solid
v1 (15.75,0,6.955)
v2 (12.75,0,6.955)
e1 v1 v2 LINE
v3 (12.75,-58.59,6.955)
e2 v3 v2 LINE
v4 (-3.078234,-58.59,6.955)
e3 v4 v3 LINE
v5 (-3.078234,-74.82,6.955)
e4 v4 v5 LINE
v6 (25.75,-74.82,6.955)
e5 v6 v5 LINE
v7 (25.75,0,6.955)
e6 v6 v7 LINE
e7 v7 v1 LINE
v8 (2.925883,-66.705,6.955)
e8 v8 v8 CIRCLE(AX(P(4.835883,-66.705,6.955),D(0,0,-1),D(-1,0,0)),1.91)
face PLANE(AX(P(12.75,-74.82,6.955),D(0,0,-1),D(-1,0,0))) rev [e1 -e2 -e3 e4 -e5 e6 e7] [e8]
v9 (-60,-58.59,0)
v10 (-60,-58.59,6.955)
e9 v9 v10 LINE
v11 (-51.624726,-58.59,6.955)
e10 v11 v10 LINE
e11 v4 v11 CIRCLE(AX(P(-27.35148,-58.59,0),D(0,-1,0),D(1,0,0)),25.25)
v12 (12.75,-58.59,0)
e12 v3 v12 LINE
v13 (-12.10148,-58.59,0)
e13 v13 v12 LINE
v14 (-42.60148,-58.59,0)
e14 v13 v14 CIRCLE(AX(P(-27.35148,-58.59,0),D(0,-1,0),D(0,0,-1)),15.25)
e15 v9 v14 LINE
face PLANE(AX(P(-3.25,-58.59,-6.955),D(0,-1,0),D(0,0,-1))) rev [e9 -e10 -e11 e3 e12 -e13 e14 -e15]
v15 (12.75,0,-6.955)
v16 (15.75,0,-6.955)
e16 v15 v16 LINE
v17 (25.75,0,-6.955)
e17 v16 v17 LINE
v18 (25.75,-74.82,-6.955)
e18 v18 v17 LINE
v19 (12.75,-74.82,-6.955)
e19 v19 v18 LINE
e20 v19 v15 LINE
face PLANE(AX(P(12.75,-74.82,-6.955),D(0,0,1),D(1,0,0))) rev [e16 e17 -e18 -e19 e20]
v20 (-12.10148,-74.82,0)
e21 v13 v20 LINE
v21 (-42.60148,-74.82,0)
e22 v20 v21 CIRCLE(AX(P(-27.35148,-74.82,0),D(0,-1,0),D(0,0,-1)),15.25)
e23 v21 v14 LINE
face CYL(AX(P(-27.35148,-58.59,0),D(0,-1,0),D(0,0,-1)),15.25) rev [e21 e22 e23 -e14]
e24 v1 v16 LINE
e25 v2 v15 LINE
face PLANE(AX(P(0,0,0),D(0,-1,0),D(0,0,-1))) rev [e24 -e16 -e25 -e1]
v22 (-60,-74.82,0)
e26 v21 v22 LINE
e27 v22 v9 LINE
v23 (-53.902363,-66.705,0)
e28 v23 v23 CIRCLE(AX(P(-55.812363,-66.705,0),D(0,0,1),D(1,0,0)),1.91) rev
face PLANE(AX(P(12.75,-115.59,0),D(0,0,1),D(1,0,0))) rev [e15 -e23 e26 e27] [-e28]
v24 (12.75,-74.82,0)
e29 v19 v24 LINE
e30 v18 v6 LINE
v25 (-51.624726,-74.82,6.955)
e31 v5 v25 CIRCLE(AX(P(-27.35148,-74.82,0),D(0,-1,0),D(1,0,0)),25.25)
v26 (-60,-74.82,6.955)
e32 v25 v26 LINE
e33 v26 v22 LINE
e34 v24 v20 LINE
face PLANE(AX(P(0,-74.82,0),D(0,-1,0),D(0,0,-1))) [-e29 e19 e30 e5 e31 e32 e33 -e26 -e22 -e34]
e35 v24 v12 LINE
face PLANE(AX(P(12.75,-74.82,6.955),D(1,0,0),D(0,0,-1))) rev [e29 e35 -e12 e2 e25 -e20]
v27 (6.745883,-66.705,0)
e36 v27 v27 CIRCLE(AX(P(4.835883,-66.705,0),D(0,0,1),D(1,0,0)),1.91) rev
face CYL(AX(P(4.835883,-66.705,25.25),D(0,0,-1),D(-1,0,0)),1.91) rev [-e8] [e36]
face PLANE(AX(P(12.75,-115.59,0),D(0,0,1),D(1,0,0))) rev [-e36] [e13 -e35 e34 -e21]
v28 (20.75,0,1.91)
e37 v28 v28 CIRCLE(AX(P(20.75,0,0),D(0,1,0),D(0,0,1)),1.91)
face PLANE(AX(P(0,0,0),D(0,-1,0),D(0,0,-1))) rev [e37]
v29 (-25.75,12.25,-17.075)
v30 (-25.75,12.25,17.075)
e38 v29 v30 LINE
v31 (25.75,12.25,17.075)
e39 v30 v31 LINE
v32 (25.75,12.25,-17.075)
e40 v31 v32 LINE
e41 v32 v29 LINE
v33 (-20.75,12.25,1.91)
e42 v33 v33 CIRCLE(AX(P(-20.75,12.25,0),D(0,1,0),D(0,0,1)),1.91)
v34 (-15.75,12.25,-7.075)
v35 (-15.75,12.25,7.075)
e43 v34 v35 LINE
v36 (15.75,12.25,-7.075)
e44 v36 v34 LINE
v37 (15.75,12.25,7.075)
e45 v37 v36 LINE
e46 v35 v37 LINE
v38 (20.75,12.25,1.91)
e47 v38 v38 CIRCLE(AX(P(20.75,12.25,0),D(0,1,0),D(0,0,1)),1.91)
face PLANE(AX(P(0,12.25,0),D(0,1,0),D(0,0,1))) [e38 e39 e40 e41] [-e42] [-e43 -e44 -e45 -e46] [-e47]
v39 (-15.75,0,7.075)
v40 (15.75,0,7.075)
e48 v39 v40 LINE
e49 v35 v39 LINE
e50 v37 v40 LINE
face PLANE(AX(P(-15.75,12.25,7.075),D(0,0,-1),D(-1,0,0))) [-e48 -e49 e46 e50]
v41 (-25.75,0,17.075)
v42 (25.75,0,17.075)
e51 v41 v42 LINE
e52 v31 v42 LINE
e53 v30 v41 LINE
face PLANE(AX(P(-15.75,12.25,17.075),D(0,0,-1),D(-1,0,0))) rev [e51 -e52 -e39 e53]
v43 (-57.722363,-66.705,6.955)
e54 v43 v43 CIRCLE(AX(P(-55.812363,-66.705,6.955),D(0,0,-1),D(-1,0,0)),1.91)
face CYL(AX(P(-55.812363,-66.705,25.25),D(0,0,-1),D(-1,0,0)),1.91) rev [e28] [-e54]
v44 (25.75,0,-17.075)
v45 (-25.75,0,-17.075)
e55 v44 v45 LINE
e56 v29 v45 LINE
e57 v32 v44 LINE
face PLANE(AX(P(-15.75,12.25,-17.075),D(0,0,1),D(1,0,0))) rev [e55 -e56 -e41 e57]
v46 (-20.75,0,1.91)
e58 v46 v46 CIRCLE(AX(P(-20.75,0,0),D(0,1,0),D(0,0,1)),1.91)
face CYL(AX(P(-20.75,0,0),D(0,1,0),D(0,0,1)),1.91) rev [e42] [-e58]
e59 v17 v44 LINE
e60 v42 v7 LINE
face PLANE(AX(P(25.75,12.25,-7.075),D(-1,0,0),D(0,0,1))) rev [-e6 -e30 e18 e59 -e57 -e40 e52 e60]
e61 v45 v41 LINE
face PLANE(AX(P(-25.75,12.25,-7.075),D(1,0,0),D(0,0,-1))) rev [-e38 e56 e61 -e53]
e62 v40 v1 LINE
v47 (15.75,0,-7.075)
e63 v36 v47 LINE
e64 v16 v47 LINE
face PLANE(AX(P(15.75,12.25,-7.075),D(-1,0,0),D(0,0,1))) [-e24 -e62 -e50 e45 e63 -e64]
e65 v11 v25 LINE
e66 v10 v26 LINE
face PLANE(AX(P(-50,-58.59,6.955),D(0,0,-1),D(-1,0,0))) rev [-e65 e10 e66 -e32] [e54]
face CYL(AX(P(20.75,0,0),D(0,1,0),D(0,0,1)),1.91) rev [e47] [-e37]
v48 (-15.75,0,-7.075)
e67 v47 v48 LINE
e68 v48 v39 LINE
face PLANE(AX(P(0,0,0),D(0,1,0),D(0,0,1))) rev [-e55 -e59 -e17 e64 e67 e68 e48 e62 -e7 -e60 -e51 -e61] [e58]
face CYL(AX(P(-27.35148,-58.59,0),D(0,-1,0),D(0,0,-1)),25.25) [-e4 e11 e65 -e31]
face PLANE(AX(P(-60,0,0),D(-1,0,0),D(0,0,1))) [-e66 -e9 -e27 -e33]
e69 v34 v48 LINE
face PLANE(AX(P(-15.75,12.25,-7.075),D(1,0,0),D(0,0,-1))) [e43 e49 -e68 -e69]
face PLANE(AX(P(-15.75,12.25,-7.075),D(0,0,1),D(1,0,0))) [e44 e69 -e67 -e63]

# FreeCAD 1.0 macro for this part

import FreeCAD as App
import Part
import Sketcher
Q = App.Units.Quantity

doc = App.newDocument("Part")
body = doc.addObject("PartDesign::Body", "Body")

sketch1 = doc.addObject("Sketcher::SketchObject", "Sketch")
body.addObject(sketch1)
sketch1.AttachmentSupport = (doc.XZ_Plane, [""])
sketch1.MapMode = "FlatFace"
sketch1.addGeometry([
    Part.LineSegment(App.Vector(-26, -17, 0), App.Vector(-26, 17, 0)),
    Part.LineSegment(App.Vector(-26, 17, 0), App.Vector(26, 17, 0)),
    Part.LineSegment(App.Vector(26, 17, 0), App.Vector(26, -17, 0)),
    Part.LineSegment(App.Vector(26, -17, 0), App.Vector(-26, -17, 0)),
    Part.LineSegment(App.Vector(16, 7, 0), App.Vector(-16, 7, 0)),
    Part.LineSegment(App.Vector(-16, 7, 0), App.Vector(-16, -7, 0)),
    Part.LineSegment(App.Vector(-16, -7, 0), App.Vector(16, -7, 0)),
    Part.LineSegment(App.Vector(16, -7, 0), App.Vector(16, 7, 0)),
], False)
sketch1.addConstraint([
    Sketcher.Constraint("Coincident", 0, 2, 1, 1),
    Sketcher.Constraint("Coincident", 1, 2, 2, 1),
    Sketcher.Constraint("Coincident", 2, 2, 3, 1),
    Sketcher.Constraint("Coincident", 3, 2, 0, 1),
    Sketcher.Constraint("Coincident", 4, 2, 5, 1),
    Sketcher.Constraint("Coincident", 5, 2, 6, 1),
    Sketcher.Constraint("Coincident", 6, 2, 7, 1),
    Sketcher.Constraint("Coincident", 7, 2, 4, 1),
    Sketcher.Constraint("Vertical", 0),
    Sketcher.Constraint("Horizontal", 1),
    Sketcher.Constraint("Vertical", 2),
    Sketcher.Constraint("Horizontal", 3),
    Sketcher.Constraint("Horizontal", 4),
    Sketcher.Constraint("Vertical", 5),
    Sketcher.Constraint("Horizontal", 6),
    Sketcher.Constraint("Vertical", 7),
    Sketcher.Constraint("Symmetric", 0, 2, 2, 2, -1, 1),
    Sketcher.Constraint("Symmetric", 4, 2, 6, 2, -1, 1),
    Sketcher.Constraint("DistanceX", 1, 1, 1, 2, Q("51.5 mm")),
    Sketcher.Constraint("DistanceX", 4, 2, 4, 1, Q("31.5 mm")),
    Sketcher.Constraint("DistanceY", 4, 2, 0, 2, Q("10 mm")),
    Sketcher.Constraint("DistanceY", 0, 1, 0, 2, Q("34.15 mm")),
])
pad1 = doc.addObject("PartDesign::Pad", "Pad")
body.addObject(pad1)
pad1.Profile = sketch1
pad1.Length = 12.25
pad1.Reversed = True

sketch2 = doc.addObject("Sketcher::SketchObject", "Sketch001")
body.addObject(sketch2)
sketch2.AttachmentSupport = (doc.XZ_Plane, [""])
sketch2.MapMode = "FlatFace"
sketch2.AttachmentOffset = App.Placement(App.Vector(0, 0, -12.25), App.Rotation())
sketch2.addGeometry([
    Part.Circle(App.Vector(-20.8, 0, 0), App.Vector(0, 0, 1), 1.9),
    Part.Circle(App.Vector(20.8, 0, 0), App.Vector(0, 0, 1), 1.9),
], False)
sketch2.addConstraint([
    Sketcher.Constraint("Equal", 0, 1),
    Sketcher.Constraint("Symmetric", 0, 3, 1, 3, -1, 1),
    Sketcher.Constraint("PointOnObject", 0, 3, -1),
    Sketcher.Constraint("Diameter", 0, Q("3.82 mm")),
    Sketcher.Constraint("DistanceX", 0, 3, 1, 3, Q("41.5 mm")),
])
pocket1 = doc.addObject("PartDesign::Pocket", "Pocket")
body.addObject(pocket1)
pocket1.Profile = sketch2
pocket1.Type = "ThroughAll"
pocket1.Reversed = True

sketch3 = doc.addObject("Sketcher::SketchObject", "Sketch002")
body.addObject(sketch3)
sketch3.AttachmentSupport = (doc.XZ_Plane, [""])
sketch3.MapMode = "FlatFace"
sketch3.addGeometry([
    Part.LineSegment(App.Vector(13, 7, 0), App.Vector(13, -7, 0)),
    Part.LineSegment(App.Vector(13, -7, 0), App.Vector(26, -7, 0)),
    Part.LineSegment(App.Vector(26, -7, 0), App.Vector(26, 7, 0)),
    Part.LineSegment(App.Vector(26, 7, 0), App.Vector(13, 7, 0)),
], False)
sketch3.addConstraint([
    Sketcher.Constraint("Coincident", 0, 2, 1, 1),
    Sketcher.Constraint("Coincident", 1, 2, 2, 1),
    Sketcher.Constraint("Coincident", 2, 2, 3, 1),
    Sketcher.Constraint("Coincident", 3, 2, 0, 1),
    Sketcher.Constraint("Vertical", 0),
    Sketcher.Constraint("Horizontal", 1),
    Sketcher.Constraint("Vertical", 2),
    Sketcher.Constraint("Horizontal", 3),
    Sketcher.Constraint("DistanceX", 1, 1, 1, 2, Q("13 mm")),
    Sketcher.Constraint("DistanceY", 0, 2, 0, 1, Q("13.91 mm")),
    Sketcher.Constraint("DistanceX", -1, 1, 0, 2, Q("12.75 mm")),
    Sketcher.Constraint("DistanceY", 0, 2, -1, 1, Q("6.955 mm")),
])
pad2 = doc.addObject("PartDesign::Pad", "Pad001")
body.addObject(pad2)
pad2.Profile = sketch3
pad2.Length = 74.82

sketch4 = doc.addObject("Sketcher::SketchObject", "Sketch003")
body.addObject(sketch4)
sketch4.AttachmentSupport = (doc.YZ_Plane, [""])
sketch4.MapMode = "FlatFace"
sketch4.AttachmentOffset = App.Placement(App.Vector(0, 0, 12.75), App.Rotation())
sketch4.addGeometry([
    Part.LineSegment(App.Vector(-59, -7, 0), App.Vector(-75, -7, 0)),
    Part.LineSegment(App.Vector(-75, -7, 0), App.Vector(-75, 7, 0)),
    Part.LineSegment(App.Vector(-75, 7, 0), App.Vector(-59, 7, 0)),
    Part.LineSegment(App.Vector(-59, 7, 0), App.Vector(-59, -7, 0)),
], False)
sketch4.addConstraint([
    Sketcher.Constraint("Coincident", 0, 2, 1, 1),
    Sketcher.Constraint("Coincident", 1, 2, 2, 1),
    Sketcher.Constraint("Coincident", 2, 2, 3, 1),
    Sketcher.Constraint("Coincident", 3, 2, 0, 1),
    Sketcher.Constraint("Horizontal", 0),
    Sketcher.Constraint("Vertical", 1),
    Sketcher.Constraint("Horizontal", 2),
    Sketcher.Constraint("Vertical", 3),
    Sketcher.Constraint("DistanceX", 0, 2, 0, 1, Q("16.23 mm")),
    Sketcher.Constraint("DistanceY", 1, 1, 1, 2, Q("13.91 mm")),
    Sketcher.Constraint("DistanceX", 0, 2, -1, 1, Q("74.82 mm")),
    Sketcher.Constraint("DistanceY", 0, 2, -1, 1, Q("6.955 mm")),
])
pad3 = doc.addObject("PartDesign::Pad", "Pad002")
body.addObject(pad3)
pad3.Profile = sketch4
pad3.Length = 16
pad3.Reversed = True

sketch5 = doc.addObject("Sketcher::SketchObject", "Sketch004")
body.addObject(sketch5)
sketch5.AttachmentSupport = (doc.XZ_Plane, [""])
sketch5.MapMode = "FlatFace"
sketch5.AttachmentOffset = App.Placement(App.Vector(0, 0, 74.82), App.Rotation())
sketch5.addGeometry([
    Part.Circle(App.Vector(-27, 0, 0), App.Vector(0, 0, 1), 25),
    Part.Circle(App.Vector(-27, 0, 0), App.Vector(0, 0, 1), 15),
], False)
sketch5.addConstraint([
    Sketcher.Constraint("Coincident", 1, 3, 0, 3),
    Sketcher.Constraint("PointOnObject", 0, 3, -1),
    Sketcher.Constraint("Diameter", 0, Q("50.5 mm")),
    Sketcher.Constraint("Diameter", 1, Q("30.5 mm")),
    Sketcher.Constraint("DistanceX", 0, 3, -1, 1, Q("27.35148 mm")),
])
pad4 = doc.addObject("PartDesign::Pad", "Pad003")
body.addObject(pad4)
pad4.Profile = sketch5
pad4.Length = 16.23
pad4.Reversed = True

sketch6 = doc.addObject("Sketcher::SketchObject", "Sketch005")
body.addObject(sketch6)
sketch6.AttachmentSupport = (doc.XY_Plane, [""])
sketch6.MapMode = "FlatFace"
sketch6.AttachmentOffset = App.Placement(App.Vector(0, 0, -6.955), App.Rotation())
sketch6.addGeometry(Part.Circle(App.Vector(4.8, -66.7, 0), App.Vector(0, 0, 1), 1.9), False)
sketch6.addConstraint([
    Sketcher.Constraint("Diameter", 0, Q("3.82 mm")),
    Sketcher.Constraint("DistanceY", 0, 3, -1, 1, Q("66.705 mm")),
    Sketcher.Constraint("DistanceX", -1, 1, 0, 3, Q("4.835883 mm")),
])
pocket2 = doc.addObject("PartDesign::Pocket", "Pocket001")
body.addObject(pocket2)
pocket2.Profile = sketch6
pocket2.Type = "ThroughAll"
pocket2.Reversed = True

sketch7 = doc.addObject("Sketcher::SketchObject", "Sketch006")
body.addObject(sketch7)
sketch7.AttachmentSupport = (doc.YZ_Plane, [""])
sketch7.MapMode = "FlatFace"
sketch7.AttachmentOffset = App.Placement(App.Vector(0, 0, -60), App.Rotation())
sketch7.addGeometry([
    Part.LineSegment(App.Vector(-59, 7, 0), App.Vector(-75, 7, 0)),
    Part.LineSegment(App.Vector(-75, 7, 0), App.Vector(-75, -7, 0)),
    Part.LineSegment(App.Vector(-75, -7, 0), App.Vector(-59, -7, 0)),
    Part.LineSegment(App.Vector(-59, -7, 0), App.Vector(-59, 7, 0)),
], False)
sketch7.addConstraint([
    Sketcher.Constraint("Coincident", 0, 2, 1, 1),
    Sketcher.Constraint("Coincident", 1, 2, 2, 1),
    Sketcher.Constraint("Coincident", 2, 2, 3, 1),
    Sketcher.Constraint("Coincident", 3, 2, 0, 1),
    Sketcher.Constraint("Horizontal", 0),
    Sketcher.Constraint("Vertical", 1),
    Sketcher.Constraint("Horizontal", 2),
    Sketcher.Constraint("Vertical", 3),
    Sketcher.Constraint("DistanceX", 0, 2, 0, 1, Q("16.23 mm")),
    Sketcher.Constraint("DistanceY", 1, 2, 1, 1, Q("13.91 mm")),
    Sketcher.Constraint("DistanceX", 0, 2, -1, 1, Q("74.82 mm")),
    Sketcher.Constraint("DistanceY", -1, 1, 0, 2, Q("6.955 mm")),
])
pad5 = doc.addObject("PartDesign::Pad", "Pad004")
body.addObject(pad5)
pad5.Profile = sketch7
pad5.Length = 10

sketch8 = doc.addObject("Sketcher::SketchObject", "Sketch007")
body.addObject(sketch8)
sketch8.AttachmentSupport = (doc.XY_Plane, [""])
sketch8.MapMode = "FlatFace"
sketch8.AttachmentOffset = App.Placement(App.Vector(0, 0, -6.955), App.Rotation())
sketch8.addGeometry(Part.Circle(App.Vector(-55.8, -66.7, 0), App.Vector(0, 0, 1), 1.9), False)
sketch8.addConstraint([
    Sketcher.Constraint("Diameter", 0, Q("3.82 mm")),
    Sketcher.Constraint("DistanceY", 0, 3, -1, 1, Q("66.705 mm")),
    Sketcher.Constraint("DistanceX", 0, 3, -1, 1, Q("55.812363 mm")),
])
pocket3 = doc.addObject("PartDesign::Pocket", "Pocket002")
body.addObject(pocket3)
pocket3.Profile = sketch8
pocket3.Type = "ThroughAll"
pocket3.Reversed = True

sketch9 = doc.addObject("Sketcher::SketchObject", "Sketch008")
body.addObject(sketch9)
sketch9.AttachmentSupport = (doc.XZ_Plane, [""])
sketch9.MapMode = "FlatFace"
sketch9.AttachmentOffset = App.Placement(App.Vector(0, 0, 58.59), App.Rotation())
sketch9.addGeometry([
    Part.LineSegment(App.Vector(-77, -36, 0), App.Vector(-77, 0, 0)),
    Part.LineSegment(App.Vector(-77, 0, 0), App.Vector(13, 0, 0)),
    Part.LineSegment(App.Vector(13, 0, 0), App.Vector(13, -36, 0)),
    Part.LineSegment(App.Vector(13, -36, 0), App.Vector(-77, -36, 0)),
], False)
sketch9.addConstraint([
    Sketcher.Constraint("Coincident", 0, 2, 1, 1),
    Sketcher.Constraint("Coincident", 1, 2, 2, 1),
    Sketcher.Constraint("Coincident", 2, 2, 3, 1),
    Sketcher.Constraint("Coincident", 3, 2, 0, 1),
    Sketcher.Constraint("Vertical", 0),
    Sketcher.Constraint("Horizontal", 1),
    Sketcher.Constraint("Vertical", 2),
    Sketcher.Constraint("Horizontal", 3),
    Sketcher.Constraint("PointOnObject", 0, 2, -1),
    Sketcher.Constraint("DistanceX", -1, 1, 1, 2, Q("12.75 mm")),
    Sketcher.Constraint("DistanceX", 1, 1, 1, 2, Q("89.330714 mm")),
    Sketcher.Constraint("DistanceY", 0, 1, 0, 2, Q("36.104784 mm")),
])
pocket4 = doc.addObject("PartDesign::Pocket", "Pocket003")
body.addObject(pocket4)
pocket4.Profile = sketch9
pocket4.Length = 57
pocket4.Reversed = True

doc.recompute()
